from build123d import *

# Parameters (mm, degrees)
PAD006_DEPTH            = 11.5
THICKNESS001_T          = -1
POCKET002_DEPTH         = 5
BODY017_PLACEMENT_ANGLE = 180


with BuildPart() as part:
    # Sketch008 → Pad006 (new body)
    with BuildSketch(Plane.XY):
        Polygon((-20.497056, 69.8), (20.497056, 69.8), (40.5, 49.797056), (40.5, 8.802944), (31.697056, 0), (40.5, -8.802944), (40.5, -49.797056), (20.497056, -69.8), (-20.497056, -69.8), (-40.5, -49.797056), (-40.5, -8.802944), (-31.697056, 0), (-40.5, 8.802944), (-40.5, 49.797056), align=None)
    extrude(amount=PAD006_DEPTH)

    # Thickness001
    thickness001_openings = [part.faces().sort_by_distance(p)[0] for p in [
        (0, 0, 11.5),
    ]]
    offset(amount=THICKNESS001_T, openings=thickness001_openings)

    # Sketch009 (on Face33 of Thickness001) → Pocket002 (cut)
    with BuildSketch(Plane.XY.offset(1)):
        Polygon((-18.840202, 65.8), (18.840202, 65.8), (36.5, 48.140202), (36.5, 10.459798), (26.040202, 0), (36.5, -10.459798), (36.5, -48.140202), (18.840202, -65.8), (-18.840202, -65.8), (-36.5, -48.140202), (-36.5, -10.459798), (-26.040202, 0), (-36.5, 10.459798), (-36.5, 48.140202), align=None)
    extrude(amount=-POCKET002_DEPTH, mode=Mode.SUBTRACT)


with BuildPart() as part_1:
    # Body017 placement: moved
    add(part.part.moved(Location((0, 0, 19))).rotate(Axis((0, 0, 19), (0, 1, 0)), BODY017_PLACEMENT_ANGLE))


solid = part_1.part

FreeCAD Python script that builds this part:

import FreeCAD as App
import Part
import Sketcher
Q = App.Units.Quantity


def faces_at(feature, points):
    """Names of the faces that lie closest to the given points."""
    faces = feature.Shape.Faces
    near = lambda p: min(range(len(faces)), key=lambda i: faces[i].distToShape(Part.Vertex(*p))[0])
    return sorted({f"Face{near(p) + 1}" for p in points})


def add_polygon(sketch, points):
    """Adds a closed chain of lines whose ends are joined by coincident constraints."""
    first, n = sketch.GeometryCount, len(points)
    for a, b in zip(points, points[1:] + points[:1]):
        sketch.addGeometry(Part.LineSegment(App.Vector(*a, 0), App.Vector(*b, 0)), False)
    for i in range(n):
        sketch.addConstraint(Sketcher.Constraint("Coincident", first + i, 2, first + (i + 1) % n, 1))

doc = App.newDocument("Part")
body = doc.addObject("PartDesign::Body", "Body")

sketch1 = doc.addObject("Sketcher::SketchObject", "Sketch")
body.addObject(sketch1)
sketch1.AttachmentSupport = (doc.XY_Plane, [""])
sketch1.MapMode = "FlatFace"
add_polygon(sketch1, [(20.497056, 69.8), (-20.497056, 69.8), (-40.5, 49.797056), (-40.5, 8.802944), (-31.697056, 0), (-40.5, -8.802944), (-40.5, -49.797056), (-20.497056, -69.8), (20.497056, -69.8), (40.5, -49.797056), (40.5, -8.802944), (31.697056, 0), (40.5, 8.802944), (40.5, 49.797056)])
sketch1.addConstraint(Sketcher.Constraint("Horizontal", 0))
sketch1.addConstraint(Sketcher.Constraint("Vertical", 2))
sketch1.addConstraint(Sketcher.Constraint("Vertical", 5))
sketch1.addConstraint(Sketcher.Constraint("Horizontal", 7))
sketch1.addConstraint(Sketcher.Constraint("Vertical", 9))
sketch1.addConstraint(Sketcher.Constraint("Vertical", 12))
sketch1.addConstraint(Sketcher.Constraint("Symmetric", 0, 2, 7, 2, -1, 1))
sketch1.addConstraint(Sketcher.Constraint("Symmetric", 1, 2, 8, 2, -1, 1))
sketch1.addConstraint(Sketcher.Constraint("Symmetric", 3, 2, 10, 2, -1, 1))
sketch1.addConstraint(Sketcher.Constraint("Symmetric", 4, 2, 11, 2, -1, 1))
sketch1.addConstraint(Sketcher.Constraint("Symmetric", 5, 2, 8, 2, -2))
sketch1.addConstraint(Sketcher.Constraint("PointOnObject", 3, 2, -1))
sketch1.addConstraint(Sketcher.Constraint("Perpendicular", 1, 3))
sketch1.addConstraint(Sketcher.Constraint("Perpendicular", 3, 4))
sketch1.addConstraint(Sketcher.Constraint("Perpendicular", 4, 6))
sketch1.addConstraint(Sketcher.Constraint("Perpendicular", 8, 10))
sketch1.addConstraint(Sketcher.Constraint("Perpendicular", 11, 13))
sketch1.addConstraint(Sketcher.Constraint("Horizontal", 4, 2, 9, 2))
sketch1.addConstraint(Sketcher.Constraint("Horizontal", 1, 2, 12, 2))
sketch1.addConstraint(Sketcher.Constraint("Equal", 7, 2))
sketch1.addConstraint(Sketcher.Constraint("DistanceX", 5, 2, 8, 2, Q("81 mm")))
sketch1.addConstraint(Sketcher.Constraint("DistanceY", -1, 1, 0, 2, Q("69.8 mm")))
sketch1.addConstraint(Sketcher.Constraint("DistanceX", 0, 2, 0, 1, Q("40.994112 mm")))
pad1 = doc.addObject("PartDesign::Pad", "Pad")
body.addObject(pad1)
pad1.Profile = sketch1
pad1.Length = 11.5
doc.recompute()

thickness = doc.addObject("PartDesign::Thickness", "Thickness")
body.addObject(thickness)
thickness.Base = (pad1, faces_at(pad1, [(0, 0, 11.5)]))
thickness.Value = 1
thickness.Reversed = True
thickness.Join = "Arc"

sketch2 = doc.addObject("Sketcher::SketchObject", "Sketch001")
body.addObject(sketch2)
sketch2.AttachmentSupport = (doc.XY_Plane, [""])
sketch2.MapMode = "FlatFace"
sketch2.AttachmentOffset = App.Placement(App.Vector(0, 0, 1), App.Rotation())
add_polygon(sketch2, [(18.840202, 65.8), (-18.840202, 65.8), (-36.5, 48.140202), (-36.5, 10.459798), (-26.040202, 0), (-36.5, -10.459798), (-36.5, -48.140202), (-18.840202, -65.8), (18.840202, -65.8), (36.5, -48.140202), (36.5, -10.459798), (26.040202, 0), (36.5, 10.459798), (36.5, 48.140202)])
sketch2.addConstraint(Sketcher.Constraint("Horizontal", 0))
sketch2.addConstraint(Sketcher.Constraint("Vertical", 2))
sketch2.addConstraint(Sketcher.Constraint("Vertical", 5))
sketch2.addConstraint(Sketcher.Constraint("Horizontal", 7))
sketch2.addConstraint(Sketcher.Constraint("Vertical", 9))
sketch2.addConstraint(Sketcher.Constraint("Vertical", 12))
sketch2.addConstraint(Sketcher.Constraint("Symmetric", 0, 2, 7, 2, -1, 1))
sketch2.addConstraint(Sketcher.Constraint("Symmetric", 1, 2, 8, 2, -1, 1))
sketch2.addConstraint(Sketcher.Constraint("Symmetric", 3, 2, 10, 2, -1, 1))
sketch2.addConstraint(Sketcher.Constraint("Symmetric", 4, 2, 11, 2, -1, 1))
sketch2.addConstraint(Sketcher.Constraint("Symmetric", 5, 2, 8, 2, -2))
sketch2.addConstraint(Sketcher.Constraint("PointOnObject", 3, 2, -1))
sketch2.addConstraint(Sketcher.Constraint("Perpendicular", 1, 3))
sketch2.addConstraint(Sketcher.Constraint("Perpendicular", 3, 4))
sketch2.addConstraint(Sketcher.Constraint("Perpendicular", 4, 6))
sketch2.addConstraint(Sketcher.Constraint("Perpendicular", 8, 10))
sketch2.addConstraint(Sketcher.Constraint("Perpendicular", 11, 13))
sketch2.addConstraint(Sketcher.Constraint("Horizontal", 4, 2, 9, 2))
sketch2.addConstraint(Sketcher.Constraint("Horizontal", 1, 2, 12, 2))
sketch2.addConstraint(Sketcher.Constraint("Equal", 7, 2))
sketch2.addConstraint(Sketcher.Constraint("DistanceX", 5, 2, 8, 2, Q("73 mm")))
sketch2.addConstraint(Sketcher.Constraint("DistanceY", -1, 1, 0, 2, Q("65.8 mm")))
sketch2.addConstraint(Sketcher.Constraint("DistanceY", 2, 2, 0, 2, Q("55.340202 mm")))
pocket1 = doc.addObject("PartDesign::Pocket", "Pocket")
body.addObject(pocket1)
pocket1.Profile = sketch2
pocket1.Length = 5
body2 = doc.addObject("PartDesign::Body", "Body001")
doc.recompute()

body.Placement = App.Placement(App.Vector(0, 0, 19), App.Rotation(App.Vector(0, 1, 0), 180))
boolean = doc.addObject("PartDesign::Boolean", "Boolean")
body2.addObject(boolean)
boolean.Type = "Fuse"
boolean.addObjects([body])

doc.recompute()
